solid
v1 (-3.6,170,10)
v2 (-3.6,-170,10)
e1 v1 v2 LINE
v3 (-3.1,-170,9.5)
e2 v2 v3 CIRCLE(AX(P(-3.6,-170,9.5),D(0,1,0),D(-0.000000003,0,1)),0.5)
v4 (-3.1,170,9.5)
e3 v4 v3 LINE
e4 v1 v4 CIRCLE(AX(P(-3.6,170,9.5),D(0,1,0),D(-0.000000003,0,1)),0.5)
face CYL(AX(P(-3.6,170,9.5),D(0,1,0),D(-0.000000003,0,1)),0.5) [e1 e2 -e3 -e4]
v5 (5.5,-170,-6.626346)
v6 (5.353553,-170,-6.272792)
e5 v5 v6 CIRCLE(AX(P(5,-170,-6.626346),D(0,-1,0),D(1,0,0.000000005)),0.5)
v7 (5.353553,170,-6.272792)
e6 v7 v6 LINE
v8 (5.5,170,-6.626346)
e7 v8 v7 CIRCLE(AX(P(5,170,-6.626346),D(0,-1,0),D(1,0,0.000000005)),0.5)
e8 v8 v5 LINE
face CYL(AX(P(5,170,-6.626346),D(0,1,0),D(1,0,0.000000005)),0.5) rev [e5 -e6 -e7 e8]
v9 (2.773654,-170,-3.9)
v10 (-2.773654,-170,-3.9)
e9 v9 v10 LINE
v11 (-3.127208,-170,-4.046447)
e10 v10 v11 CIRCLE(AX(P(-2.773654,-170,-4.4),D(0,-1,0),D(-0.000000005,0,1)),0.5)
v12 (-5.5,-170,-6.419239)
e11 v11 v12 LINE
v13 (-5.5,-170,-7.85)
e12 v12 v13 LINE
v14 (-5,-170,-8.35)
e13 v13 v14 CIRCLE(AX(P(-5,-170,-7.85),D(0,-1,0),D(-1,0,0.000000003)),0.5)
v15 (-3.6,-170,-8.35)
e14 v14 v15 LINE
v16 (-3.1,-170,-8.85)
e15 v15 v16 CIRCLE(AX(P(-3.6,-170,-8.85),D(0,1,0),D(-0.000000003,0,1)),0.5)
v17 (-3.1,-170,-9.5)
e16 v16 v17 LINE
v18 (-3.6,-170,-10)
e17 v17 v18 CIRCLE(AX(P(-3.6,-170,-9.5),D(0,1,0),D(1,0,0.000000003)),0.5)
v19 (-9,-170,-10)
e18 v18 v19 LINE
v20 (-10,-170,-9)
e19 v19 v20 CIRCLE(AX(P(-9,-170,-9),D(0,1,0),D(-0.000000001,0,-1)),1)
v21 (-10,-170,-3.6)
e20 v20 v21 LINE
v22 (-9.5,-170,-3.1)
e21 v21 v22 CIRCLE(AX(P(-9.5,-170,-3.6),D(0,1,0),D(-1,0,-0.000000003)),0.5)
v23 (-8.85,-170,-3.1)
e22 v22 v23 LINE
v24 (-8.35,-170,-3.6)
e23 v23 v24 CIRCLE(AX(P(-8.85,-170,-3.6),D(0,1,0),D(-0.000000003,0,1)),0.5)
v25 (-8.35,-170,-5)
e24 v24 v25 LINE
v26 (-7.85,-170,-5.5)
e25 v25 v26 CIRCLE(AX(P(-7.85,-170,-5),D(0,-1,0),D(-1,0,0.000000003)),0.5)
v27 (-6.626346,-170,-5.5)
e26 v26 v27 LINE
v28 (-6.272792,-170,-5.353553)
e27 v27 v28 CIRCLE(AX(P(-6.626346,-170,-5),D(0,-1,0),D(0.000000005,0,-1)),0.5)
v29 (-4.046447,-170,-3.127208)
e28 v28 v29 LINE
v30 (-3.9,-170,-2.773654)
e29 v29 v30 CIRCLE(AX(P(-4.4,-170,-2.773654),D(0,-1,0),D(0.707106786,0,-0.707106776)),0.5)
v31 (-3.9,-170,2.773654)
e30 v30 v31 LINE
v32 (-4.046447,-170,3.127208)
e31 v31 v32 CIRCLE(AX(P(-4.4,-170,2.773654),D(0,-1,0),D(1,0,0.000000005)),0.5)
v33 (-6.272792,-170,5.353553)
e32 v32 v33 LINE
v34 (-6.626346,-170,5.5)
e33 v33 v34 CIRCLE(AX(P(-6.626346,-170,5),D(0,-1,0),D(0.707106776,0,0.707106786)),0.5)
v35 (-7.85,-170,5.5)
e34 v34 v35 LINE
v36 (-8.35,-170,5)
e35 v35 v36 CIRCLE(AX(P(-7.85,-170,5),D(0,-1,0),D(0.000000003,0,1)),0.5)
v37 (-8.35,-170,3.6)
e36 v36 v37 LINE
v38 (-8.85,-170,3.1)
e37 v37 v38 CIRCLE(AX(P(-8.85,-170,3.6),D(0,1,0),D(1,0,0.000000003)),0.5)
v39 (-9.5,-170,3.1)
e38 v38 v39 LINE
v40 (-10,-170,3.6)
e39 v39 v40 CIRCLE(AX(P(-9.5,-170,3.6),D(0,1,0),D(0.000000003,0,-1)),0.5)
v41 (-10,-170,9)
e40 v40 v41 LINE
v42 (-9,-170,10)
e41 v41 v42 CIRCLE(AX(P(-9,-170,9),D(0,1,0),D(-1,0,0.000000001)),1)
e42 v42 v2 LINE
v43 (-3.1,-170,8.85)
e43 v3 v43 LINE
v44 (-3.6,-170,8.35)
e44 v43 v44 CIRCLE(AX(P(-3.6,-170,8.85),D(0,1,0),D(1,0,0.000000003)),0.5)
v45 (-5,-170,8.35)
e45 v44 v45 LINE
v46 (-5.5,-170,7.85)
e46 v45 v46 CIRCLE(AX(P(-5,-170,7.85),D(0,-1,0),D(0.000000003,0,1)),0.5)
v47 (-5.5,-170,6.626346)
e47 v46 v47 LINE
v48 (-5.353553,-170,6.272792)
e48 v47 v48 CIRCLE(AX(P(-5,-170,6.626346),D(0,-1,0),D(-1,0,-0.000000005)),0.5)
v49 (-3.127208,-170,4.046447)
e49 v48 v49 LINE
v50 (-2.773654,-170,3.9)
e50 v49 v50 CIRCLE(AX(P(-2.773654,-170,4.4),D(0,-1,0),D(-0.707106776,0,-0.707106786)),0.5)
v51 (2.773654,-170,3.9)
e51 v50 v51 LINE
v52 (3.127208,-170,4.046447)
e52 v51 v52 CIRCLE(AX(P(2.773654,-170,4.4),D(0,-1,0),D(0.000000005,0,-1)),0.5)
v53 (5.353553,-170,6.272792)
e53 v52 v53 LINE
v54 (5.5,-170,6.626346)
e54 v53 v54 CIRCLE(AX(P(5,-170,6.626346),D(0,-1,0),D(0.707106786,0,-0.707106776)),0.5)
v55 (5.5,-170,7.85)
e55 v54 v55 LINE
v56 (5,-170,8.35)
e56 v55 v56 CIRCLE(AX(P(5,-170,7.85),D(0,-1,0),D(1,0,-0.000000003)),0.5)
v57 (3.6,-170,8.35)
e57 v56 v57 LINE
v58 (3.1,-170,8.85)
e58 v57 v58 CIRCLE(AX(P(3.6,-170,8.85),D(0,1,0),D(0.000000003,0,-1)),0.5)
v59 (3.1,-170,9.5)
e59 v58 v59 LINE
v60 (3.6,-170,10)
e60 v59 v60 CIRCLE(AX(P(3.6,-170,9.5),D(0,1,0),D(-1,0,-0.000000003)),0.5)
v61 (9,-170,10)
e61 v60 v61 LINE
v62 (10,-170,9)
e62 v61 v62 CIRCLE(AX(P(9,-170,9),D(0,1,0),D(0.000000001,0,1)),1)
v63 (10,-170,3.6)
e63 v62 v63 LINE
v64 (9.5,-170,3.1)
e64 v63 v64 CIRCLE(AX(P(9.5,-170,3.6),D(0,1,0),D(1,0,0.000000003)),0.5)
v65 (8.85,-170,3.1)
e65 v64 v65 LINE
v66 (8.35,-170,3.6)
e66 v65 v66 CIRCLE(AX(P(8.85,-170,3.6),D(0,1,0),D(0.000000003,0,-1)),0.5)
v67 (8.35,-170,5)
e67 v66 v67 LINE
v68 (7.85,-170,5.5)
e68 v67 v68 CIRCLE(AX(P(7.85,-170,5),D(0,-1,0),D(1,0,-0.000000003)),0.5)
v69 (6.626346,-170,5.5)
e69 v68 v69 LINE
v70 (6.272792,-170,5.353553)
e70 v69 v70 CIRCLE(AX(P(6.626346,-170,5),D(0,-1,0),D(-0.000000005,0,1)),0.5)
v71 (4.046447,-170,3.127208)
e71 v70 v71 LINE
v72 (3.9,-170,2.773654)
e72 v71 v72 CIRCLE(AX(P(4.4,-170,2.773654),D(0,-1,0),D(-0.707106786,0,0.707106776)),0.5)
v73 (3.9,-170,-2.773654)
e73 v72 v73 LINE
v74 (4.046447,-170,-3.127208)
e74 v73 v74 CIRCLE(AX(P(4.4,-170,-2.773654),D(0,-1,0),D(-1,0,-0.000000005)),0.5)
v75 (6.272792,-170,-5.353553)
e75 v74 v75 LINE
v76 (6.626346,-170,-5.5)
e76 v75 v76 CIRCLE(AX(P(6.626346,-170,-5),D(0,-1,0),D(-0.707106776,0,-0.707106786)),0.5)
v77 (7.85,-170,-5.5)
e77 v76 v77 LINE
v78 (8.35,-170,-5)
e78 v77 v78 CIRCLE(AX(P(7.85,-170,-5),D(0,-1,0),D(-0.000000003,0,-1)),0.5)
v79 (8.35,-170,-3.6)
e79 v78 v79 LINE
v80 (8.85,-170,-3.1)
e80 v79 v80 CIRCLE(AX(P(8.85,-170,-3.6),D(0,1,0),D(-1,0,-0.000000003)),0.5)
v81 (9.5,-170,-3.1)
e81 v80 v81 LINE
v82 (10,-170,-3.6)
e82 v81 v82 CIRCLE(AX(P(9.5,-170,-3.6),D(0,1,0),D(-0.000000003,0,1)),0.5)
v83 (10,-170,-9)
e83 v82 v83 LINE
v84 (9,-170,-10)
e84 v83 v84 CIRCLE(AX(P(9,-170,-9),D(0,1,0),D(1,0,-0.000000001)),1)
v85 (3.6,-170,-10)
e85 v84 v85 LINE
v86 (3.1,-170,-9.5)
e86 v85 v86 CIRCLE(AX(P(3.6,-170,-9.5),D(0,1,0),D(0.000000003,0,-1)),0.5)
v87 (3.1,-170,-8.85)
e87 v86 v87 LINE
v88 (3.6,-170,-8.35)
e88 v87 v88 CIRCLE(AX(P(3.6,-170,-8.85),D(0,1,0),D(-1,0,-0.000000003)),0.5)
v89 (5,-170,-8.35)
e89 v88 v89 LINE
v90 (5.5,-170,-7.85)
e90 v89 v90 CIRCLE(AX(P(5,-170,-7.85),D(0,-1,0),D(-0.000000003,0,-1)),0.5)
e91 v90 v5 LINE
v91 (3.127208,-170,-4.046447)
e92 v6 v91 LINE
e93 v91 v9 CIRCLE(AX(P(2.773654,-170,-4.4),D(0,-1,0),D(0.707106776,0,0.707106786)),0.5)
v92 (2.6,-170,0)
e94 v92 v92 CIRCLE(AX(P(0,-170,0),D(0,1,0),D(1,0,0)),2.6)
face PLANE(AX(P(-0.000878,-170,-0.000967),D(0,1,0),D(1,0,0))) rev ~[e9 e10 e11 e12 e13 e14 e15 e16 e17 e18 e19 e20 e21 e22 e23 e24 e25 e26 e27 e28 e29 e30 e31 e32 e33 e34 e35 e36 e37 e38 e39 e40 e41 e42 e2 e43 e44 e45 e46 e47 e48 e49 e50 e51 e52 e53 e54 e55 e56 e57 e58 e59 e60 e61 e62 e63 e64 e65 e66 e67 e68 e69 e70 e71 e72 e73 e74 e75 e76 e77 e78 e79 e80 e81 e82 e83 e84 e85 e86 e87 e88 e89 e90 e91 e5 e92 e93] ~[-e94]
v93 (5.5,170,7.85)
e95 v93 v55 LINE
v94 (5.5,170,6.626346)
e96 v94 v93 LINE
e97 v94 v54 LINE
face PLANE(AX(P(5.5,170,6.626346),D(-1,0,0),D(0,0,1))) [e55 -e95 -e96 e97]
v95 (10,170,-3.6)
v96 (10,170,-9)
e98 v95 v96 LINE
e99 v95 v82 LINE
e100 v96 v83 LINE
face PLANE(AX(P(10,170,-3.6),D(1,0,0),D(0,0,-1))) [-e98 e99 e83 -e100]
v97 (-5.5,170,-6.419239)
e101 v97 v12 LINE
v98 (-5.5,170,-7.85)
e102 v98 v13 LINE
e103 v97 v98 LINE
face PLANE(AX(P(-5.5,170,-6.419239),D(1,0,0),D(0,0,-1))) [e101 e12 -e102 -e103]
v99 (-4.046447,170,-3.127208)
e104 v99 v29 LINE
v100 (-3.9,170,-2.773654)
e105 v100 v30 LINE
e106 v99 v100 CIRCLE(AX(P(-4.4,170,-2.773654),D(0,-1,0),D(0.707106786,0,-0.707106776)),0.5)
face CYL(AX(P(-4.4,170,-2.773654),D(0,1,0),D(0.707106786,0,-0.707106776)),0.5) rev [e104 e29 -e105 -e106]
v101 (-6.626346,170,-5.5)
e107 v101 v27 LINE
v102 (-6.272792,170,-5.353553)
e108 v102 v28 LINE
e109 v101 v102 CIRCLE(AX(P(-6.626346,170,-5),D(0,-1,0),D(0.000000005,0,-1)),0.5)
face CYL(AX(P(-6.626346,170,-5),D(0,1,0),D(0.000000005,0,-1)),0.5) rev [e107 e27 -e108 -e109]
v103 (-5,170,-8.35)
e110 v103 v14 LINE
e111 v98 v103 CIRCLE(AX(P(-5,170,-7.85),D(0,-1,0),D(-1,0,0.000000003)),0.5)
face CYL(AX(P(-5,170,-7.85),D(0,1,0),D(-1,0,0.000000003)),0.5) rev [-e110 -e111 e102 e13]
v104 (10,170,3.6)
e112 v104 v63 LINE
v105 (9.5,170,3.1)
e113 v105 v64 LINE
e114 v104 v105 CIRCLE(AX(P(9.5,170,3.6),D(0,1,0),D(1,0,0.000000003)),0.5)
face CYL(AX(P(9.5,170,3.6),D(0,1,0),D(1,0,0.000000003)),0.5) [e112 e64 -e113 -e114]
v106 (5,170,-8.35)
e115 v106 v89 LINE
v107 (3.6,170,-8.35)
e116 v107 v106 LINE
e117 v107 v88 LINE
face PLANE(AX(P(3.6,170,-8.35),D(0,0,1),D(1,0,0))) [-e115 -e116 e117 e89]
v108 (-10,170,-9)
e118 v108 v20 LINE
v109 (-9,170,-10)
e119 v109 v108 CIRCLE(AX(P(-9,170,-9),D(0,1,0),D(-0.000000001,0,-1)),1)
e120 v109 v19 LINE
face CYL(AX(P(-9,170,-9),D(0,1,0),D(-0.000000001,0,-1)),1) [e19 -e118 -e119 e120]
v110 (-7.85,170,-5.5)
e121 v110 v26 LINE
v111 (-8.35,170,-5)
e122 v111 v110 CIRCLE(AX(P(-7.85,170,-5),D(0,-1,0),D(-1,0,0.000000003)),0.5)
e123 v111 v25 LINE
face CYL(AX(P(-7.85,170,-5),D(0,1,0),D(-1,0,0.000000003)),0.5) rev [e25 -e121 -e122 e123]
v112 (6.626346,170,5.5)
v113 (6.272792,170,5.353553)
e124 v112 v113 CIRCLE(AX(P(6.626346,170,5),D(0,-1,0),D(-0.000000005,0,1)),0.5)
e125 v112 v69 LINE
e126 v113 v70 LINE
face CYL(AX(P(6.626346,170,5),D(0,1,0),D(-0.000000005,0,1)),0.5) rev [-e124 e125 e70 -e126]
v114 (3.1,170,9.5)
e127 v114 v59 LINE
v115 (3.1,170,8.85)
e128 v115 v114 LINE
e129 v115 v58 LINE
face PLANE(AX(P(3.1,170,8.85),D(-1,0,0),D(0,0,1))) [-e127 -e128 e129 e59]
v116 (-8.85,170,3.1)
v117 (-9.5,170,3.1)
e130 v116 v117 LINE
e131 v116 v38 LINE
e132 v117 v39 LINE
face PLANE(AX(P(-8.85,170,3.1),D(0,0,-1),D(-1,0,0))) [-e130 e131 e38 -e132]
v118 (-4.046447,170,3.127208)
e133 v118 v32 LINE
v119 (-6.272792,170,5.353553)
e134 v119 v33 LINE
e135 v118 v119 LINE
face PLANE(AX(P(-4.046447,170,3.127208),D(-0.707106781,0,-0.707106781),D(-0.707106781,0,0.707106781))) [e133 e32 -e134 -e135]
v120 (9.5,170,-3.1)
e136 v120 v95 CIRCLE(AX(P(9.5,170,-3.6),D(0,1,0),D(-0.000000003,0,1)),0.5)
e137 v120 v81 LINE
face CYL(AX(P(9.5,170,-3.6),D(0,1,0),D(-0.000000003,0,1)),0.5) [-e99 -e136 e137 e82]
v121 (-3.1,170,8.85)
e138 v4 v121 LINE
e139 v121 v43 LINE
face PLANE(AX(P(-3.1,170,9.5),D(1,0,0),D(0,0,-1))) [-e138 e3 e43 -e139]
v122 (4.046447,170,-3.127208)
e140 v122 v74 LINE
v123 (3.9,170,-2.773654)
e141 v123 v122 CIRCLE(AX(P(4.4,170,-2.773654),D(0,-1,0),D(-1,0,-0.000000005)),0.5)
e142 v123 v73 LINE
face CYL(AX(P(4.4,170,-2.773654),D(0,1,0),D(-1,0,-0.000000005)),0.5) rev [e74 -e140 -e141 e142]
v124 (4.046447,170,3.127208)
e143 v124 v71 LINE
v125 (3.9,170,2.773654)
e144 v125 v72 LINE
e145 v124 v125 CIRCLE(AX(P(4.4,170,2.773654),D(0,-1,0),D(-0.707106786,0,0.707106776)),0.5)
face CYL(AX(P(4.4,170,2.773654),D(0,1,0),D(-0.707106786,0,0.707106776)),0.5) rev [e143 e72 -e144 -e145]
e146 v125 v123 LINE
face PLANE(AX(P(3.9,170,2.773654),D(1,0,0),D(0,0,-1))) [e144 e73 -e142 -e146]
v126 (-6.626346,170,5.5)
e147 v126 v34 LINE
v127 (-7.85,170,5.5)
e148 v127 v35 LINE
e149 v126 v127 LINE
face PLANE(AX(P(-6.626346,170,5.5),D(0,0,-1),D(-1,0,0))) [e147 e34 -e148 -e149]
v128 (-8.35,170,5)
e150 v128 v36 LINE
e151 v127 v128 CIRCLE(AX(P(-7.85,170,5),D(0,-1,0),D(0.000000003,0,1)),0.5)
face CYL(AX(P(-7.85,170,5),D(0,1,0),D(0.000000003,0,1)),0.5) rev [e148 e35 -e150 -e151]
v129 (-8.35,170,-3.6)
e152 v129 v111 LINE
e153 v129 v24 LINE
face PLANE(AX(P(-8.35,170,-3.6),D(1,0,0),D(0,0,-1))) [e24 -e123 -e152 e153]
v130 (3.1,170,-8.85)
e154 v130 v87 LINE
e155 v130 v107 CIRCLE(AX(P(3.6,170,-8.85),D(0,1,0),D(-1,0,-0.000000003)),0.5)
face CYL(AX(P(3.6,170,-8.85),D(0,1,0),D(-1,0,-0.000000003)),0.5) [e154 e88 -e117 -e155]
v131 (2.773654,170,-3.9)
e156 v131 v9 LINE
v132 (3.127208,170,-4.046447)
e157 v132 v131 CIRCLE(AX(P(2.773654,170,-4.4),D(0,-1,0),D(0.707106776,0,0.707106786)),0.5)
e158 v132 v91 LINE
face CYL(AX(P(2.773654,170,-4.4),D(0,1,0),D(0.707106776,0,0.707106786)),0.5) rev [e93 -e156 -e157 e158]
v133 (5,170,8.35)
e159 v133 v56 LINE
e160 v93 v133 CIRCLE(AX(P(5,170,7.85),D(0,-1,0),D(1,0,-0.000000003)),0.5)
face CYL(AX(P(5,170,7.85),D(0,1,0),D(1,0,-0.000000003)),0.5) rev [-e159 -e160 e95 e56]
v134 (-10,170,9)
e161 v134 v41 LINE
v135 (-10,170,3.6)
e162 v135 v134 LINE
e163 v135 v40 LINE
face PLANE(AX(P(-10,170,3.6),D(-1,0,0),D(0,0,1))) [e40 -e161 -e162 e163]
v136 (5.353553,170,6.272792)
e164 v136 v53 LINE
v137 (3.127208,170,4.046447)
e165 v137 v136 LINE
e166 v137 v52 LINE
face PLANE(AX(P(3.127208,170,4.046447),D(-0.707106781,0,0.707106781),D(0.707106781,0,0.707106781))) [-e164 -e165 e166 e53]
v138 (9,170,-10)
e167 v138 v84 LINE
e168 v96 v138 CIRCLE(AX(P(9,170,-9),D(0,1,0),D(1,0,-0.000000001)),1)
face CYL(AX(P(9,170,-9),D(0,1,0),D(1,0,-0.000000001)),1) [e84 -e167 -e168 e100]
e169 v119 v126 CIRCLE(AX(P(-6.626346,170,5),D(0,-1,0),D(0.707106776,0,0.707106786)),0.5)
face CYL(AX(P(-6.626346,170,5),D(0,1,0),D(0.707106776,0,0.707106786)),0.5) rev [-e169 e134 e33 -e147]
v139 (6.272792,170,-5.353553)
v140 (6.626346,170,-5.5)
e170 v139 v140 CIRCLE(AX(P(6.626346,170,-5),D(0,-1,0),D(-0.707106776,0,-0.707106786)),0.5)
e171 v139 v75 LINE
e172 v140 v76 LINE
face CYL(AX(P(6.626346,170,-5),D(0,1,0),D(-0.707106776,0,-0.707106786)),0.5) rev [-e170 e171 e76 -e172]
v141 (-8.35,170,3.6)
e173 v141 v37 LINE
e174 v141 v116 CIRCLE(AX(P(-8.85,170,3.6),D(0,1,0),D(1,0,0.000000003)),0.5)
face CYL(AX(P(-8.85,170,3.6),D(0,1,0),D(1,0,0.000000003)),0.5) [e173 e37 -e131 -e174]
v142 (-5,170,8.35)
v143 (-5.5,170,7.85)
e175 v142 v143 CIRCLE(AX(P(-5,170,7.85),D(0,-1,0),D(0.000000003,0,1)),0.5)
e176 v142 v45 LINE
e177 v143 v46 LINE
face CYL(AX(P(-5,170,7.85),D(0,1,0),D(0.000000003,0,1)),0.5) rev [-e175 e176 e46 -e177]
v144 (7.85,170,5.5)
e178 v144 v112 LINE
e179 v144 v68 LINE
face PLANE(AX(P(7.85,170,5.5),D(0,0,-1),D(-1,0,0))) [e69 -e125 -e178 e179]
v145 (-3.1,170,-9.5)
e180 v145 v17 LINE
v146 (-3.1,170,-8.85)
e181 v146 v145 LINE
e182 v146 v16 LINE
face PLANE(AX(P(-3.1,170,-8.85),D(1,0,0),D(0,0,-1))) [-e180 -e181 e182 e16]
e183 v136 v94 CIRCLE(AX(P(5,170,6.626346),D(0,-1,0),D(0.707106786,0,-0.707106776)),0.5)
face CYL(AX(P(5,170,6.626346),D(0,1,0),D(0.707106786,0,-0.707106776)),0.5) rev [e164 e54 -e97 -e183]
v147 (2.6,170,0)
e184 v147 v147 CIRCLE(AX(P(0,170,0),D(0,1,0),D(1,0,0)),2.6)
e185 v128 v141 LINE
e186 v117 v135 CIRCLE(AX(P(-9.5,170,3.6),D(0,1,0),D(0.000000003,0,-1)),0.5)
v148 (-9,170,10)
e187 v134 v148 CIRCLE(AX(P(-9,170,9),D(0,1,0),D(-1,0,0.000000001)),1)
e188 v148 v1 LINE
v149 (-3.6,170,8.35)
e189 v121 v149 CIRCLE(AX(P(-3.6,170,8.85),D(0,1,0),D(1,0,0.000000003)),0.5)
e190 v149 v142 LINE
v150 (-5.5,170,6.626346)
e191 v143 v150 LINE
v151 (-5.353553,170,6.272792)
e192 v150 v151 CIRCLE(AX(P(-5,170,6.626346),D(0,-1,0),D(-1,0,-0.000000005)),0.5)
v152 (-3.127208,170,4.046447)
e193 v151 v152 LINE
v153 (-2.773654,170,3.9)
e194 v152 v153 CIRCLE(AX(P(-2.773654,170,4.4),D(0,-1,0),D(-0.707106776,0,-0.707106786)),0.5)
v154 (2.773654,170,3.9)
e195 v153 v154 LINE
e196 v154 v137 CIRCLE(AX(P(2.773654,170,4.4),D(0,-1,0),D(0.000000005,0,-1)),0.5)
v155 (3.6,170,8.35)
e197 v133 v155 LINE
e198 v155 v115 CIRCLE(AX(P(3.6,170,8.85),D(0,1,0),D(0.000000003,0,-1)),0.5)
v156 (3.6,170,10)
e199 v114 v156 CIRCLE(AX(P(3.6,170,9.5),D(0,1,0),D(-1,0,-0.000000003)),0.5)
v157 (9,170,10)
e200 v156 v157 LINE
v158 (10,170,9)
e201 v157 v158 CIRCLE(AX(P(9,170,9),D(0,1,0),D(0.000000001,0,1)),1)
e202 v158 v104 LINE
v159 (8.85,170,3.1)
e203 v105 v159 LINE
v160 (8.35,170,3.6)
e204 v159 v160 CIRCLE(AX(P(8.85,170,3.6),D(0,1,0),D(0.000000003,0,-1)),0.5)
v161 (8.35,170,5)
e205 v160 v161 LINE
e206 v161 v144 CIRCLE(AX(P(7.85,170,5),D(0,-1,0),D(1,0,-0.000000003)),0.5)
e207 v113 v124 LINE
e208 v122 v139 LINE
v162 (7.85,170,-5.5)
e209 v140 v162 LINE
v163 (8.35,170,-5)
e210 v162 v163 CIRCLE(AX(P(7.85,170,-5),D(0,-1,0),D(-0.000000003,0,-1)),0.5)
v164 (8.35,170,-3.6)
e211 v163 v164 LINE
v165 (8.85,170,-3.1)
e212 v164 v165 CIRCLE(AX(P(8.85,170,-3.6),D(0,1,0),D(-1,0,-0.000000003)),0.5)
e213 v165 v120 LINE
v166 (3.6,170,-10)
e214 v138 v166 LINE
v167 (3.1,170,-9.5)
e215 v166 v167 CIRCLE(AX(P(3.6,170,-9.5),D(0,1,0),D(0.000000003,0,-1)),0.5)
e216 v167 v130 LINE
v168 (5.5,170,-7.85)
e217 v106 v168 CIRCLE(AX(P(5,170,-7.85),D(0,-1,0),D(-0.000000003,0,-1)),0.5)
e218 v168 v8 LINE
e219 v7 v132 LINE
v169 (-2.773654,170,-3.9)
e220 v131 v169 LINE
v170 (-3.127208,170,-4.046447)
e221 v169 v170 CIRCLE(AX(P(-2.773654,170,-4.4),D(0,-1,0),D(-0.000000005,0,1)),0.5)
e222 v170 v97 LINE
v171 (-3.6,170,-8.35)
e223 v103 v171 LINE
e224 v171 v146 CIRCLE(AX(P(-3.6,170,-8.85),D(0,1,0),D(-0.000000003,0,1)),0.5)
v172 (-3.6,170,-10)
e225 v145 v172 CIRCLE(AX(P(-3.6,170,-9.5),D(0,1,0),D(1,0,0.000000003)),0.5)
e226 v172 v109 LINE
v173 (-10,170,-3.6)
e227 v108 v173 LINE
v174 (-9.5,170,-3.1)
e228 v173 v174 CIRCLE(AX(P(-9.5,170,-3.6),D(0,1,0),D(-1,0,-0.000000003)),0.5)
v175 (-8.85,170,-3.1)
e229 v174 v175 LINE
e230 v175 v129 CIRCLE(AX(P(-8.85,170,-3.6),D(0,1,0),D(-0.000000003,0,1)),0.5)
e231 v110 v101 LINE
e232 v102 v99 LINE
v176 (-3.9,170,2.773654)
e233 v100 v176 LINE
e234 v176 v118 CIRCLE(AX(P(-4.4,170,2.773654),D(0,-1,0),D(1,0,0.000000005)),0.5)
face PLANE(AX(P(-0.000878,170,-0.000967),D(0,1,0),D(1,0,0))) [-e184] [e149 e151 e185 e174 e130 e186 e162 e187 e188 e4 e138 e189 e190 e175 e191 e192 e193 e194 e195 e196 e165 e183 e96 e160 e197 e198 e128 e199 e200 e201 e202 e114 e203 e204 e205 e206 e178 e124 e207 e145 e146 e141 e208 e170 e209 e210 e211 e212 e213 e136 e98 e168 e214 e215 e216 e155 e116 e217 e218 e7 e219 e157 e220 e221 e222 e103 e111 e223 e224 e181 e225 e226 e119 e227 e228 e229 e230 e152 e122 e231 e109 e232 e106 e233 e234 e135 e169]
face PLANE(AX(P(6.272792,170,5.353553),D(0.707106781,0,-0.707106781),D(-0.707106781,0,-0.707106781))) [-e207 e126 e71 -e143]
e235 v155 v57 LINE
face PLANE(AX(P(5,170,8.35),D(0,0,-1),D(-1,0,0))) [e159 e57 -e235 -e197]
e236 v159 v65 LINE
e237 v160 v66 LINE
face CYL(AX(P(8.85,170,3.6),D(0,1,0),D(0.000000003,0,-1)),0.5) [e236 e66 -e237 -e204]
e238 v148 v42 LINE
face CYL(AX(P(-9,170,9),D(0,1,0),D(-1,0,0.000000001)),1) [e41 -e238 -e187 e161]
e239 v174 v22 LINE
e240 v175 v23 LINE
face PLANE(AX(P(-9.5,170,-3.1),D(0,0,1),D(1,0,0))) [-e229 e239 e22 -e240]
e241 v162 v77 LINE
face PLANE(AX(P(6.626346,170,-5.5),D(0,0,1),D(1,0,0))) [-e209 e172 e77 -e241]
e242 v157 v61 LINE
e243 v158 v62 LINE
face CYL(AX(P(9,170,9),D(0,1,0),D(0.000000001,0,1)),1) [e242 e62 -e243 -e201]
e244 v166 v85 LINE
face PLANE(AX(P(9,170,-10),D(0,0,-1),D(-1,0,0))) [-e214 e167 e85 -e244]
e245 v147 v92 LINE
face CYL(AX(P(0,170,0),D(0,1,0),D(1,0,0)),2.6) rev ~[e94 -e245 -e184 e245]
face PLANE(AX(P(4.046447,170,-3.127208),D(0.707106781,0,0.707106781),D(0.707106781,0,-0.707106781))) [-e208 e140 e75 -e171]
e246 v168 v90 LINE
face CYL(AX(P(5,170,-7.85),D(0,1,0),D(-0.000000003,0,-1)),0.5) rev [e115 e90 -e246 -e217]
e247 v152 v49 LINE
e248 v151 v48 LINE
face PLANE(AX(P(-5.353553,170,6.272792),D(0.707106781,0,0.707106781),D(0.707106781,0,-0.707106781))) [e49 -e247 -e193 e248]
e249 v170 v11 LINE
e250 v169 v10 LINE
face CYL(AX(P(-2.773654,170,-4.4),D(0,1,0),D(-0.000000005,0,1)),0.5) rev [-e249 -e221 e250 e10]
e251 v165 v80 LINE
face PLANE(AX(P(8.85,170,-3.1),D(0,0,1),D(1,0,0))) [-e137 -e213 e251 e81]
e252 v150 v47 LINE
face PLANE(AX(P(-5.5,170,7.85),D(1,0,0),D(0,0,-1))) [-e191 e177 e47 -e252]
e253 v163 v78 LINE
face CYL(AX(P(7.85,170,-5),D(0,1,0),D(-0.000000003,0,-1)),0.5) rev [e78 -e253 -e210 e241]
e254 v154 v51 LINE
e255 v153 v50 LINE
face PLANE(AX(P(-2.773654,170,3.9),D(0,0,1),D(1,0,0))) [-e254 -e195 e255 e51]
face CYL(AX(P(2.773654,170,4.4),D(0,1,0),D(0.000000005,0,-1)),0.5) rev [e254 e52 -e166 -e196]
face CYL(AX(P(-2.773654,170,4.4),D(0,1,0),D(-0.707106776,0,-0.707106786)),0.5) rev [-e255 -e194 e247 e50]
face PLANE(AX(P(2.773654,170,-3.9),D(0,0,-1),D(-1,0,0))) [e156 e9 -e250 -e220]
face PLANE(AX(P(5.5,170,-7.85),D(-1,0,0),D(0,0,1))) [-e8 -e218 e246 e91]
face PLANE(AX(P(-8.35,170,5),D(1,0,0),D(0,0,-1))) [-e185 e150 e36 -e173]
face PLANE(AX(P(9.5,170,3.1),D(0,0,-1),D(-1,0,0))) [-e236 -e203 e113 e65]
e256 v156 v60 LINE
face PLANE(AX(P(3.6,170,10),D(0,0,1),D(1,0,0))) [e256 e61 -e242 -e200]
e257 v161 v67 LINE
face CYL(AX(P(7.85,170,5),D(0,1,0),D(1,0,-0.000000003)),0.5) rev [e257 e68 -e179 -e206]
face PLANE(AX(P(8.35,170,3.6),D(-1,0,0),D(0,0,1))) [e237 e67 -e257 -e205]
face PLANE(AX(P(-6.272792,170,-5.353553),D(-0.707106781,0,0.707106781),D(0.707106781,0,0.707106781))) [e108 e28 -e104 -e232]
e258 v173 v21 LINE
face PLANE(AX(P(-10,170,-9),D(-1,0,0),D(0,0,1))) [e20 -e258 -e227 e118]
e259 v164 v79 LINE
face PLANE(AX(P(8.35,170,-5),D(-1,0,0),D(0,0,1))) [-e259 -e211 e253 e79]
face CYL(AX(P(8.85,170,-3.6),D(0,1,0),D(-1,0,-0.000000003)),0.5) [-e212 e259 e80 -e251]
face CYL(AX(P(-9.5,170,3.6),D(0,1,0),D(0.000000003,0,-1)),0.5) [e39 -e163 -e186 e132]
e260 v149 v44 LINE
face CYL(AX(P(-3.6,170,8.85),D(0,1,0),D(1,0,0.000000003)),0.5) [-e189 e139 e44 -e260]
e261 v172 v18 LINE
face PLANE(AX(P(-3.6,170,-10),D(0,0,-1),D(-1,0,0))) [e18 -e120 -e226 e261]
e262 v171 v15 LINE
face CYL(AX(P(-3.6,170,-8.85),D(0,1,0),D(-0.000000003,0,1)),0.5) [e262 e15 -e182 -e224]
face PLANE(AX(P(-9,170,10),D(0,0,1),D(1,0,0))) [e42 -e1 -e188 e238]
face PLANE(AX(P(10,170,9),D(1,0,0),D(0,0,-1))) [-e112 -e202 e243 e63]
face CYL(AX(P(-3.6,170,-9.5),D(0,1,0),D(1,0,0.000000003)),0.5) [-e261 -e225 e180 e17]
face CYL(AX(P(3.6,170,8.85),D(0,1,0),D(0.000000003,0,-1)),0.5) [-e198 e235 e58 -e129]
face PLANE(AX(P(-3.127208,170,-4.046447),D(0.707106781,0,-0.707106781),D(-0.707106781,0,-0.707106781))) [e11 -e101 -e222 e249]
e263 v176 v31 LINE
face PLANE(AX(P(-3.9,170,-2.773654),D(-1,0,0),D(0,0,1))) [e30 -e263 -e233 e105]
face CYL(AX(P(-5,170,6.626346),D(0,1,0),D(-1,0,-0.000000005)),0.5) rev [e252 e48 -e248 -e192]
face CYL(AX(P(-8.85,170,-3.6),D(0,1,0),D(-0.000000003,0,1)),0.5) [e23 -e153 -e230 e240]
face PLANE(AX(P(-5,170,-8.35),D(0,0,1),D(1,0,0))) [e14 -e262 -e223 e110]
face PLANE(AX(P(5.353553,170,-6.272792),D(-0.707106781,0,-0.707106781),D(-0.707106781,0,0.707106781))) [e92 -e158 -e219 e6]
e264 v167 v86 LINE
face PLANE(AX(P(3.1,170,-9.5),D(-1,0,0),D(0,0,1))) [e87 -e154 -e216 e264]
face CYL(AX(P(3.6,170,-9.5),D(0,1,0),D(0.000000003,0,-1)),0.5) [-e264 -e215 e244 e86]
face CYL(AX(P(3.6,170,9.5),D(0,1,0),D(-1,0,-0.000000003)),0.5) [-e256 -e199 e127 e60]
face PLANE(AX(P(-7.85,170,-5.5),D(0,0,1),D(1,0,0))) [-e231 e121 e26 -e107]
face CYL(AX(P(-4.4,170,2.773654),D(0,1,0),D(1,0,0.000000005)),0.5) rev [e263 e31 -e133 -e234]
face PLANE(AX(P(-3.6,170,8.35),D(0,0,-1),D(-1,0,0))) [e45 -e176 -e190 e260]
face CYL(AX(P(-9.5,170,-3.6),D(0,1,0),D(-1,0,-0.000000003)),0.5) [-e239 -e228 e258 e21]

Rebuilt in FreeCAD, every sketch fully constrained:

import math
import FreeCAD as App
import Part
import Sketcher

V = App.Vector

doc = App.newDocument("Part")
body = doc.addObject("PartDesign::Body", "Body")

# Sketch on XZ plane
sketch1 = body.newObject("Sketcher::SketchObject", "Sketch")
sketch1.AttachmentSupport = (doc.getObject("XZ_Plane"), [""])
sketch1.MapMode = "FlatFace"
sketch1.AttachmentOffset = App.Placement(V(0, 0, -170), App.Rotation())
sketch1.addGeometry(Part.LineSegment(V(-3.1, -8.85, 0), V(-3.1, -9.5, 0)), False)
sketch1.addGeometry(Part.ArcOfCircle(Part.Circle(V(-3.6, -9.5, 0), V(0, 0, 1), 0.5), math.radians(-90), math.radians(0)), False)
sketch1.addGeometry(Part.LineSegment(V(-3.6, -10, 0), V(-9, -10, 0)), False)
sketch1.addGeometry(Part.ArcOfCircle(Part.Circle(V(-9, -9, 0), V(0, 0, 1), 1), math.radians(-180), math.radians(-90)), False)
sketch1.addGeometry(Part.LineSegment(V(-10, -9, 0), V(-10, -3.6, 0)), False)
sketch1.addGeometry(Part.ArcOfCircle(Part.Circle(V(-9.5, -3.6, 0), V(0, 0, 1), 0.5), math.radians(90), math.radians(180)), False)
sketch1.addGeometry(Part.LineSegment(V(-9.5, -3.1, 0), V(-8.85, -3.1, 0)), False)
sketch1.addGeometry(Part.ArcOfCircle(Part.Circle(V(-8.85, -3.6, 0), V(0, 0, 1), 0.5), math.radians(0), math.radians(90)), False)
sketch1.addGeometry(Part.LineSegment(V(-8.35, -3.6, 0), V(-8.35, -5, 0)), False)
sketch1.addGeometry(Part.ArcOfCircle(Part.Circle(V(-7.85, -5, 0), V(0, 0, 1), 0.5), math.radians(180), math.radians(270)), False)
sketch1.addGeometry(Part.LineSegment(V(-7.85, -5.5, 0), V(-6.63, -5.5, 0)), False)
sketch1.addGeometry(Part.ArcOfCircle(Part.Circle(V(-6.63, -5, 0), V(0, 0, 1), 0.5), math.radians(-90), math.radians(-45)), False)
sketch1.addGeometry(Part.LineSegment(V(-6.27, -5.35, 0), V(-4.05, -3.13, 0)), False)
sketch1.addGeometry(Part.ArcOfCircle(Part.Circle(V(-4.4, -2.77, 0), V(0, 0, 1), 0.5), math.radians(-45), math.radians(0)), False)
sketch1.addGeometry(Part.LineSegment(V(-3.9, -2.77, 0), V(-3.9, 2.77, 0)), False)
sketch1.addGeometry(Part.ArcOfCircle(Part.Circle(V(-4.4, 2.77, 0), V(0, 0, 1), 0.5), math.radians(0), math.radians(45)), False)
sketch1.addGeometry(Part.LineSegment(V(-4.05, 3.13, 0), V(-6.27, 5.35, 0)), False)
sketch1.addGeometry(Part.ArcOfCircle(Part.Circle(V(-6.63, 5, 0), V(0, 0, 1), 0.5), math.radians(45), math.radians(90)), False)
sketch1.addGeometry(Part.LineSegment(V(-6.63, 5.5, 0), V(-7.85, 5.5, 0)), False)
sketch1.addGeometry(Part.ArcOfCircle(Part.Circle(V(-7.85, 5, 0), V(0, 0, 1), 0.5), math.radians(90), math.radians(180)), False)
sketch1.addGeometry(Part.LineSegment(V(-8.35, 5, 0), V(-8.35, 3.6, 0)), False)
sketch1.addGeometry(Part.ArcOfCircle(Part.Circle(V(-8.85, 3.6, 0), V(0, 0, 1), 0.5), math.radians(-90), math.radians(0)), False)
sketch1.addGeometry(Part.LineSegment(V(-8.85, 3.1, 0), V(-9.5, 3.1, 0)), False)
sketch1.addGeometry(Part.ArcOfCircle(Part.Circle(V(-9.5, 3.6, 0), V(0, 0, 1), 0.5), math.radians(180), math.radians(270)), False)
sketch1.addGeometry(Part.LineSegment(V(-10, 3.6, 0), V(-10, 9, 0)), False)
sketch1.addGeometry(Part.ArcOfCircle(Part.Circle(V(-9, 9, 0), V(0, 0, 1), 1), math.radians(90), math.radians(180)), False)
sketch1.addGeometry(Part.LineSegment(V(-9, 10, 0), V(-3.6, 10, 0)), False)
sketch1.addGeometry(Part.ArcOfCircle(Part.Circle(V(-3.6, 9.5, 0), V(0, 0, 1), 0.5), math.radians(0), math.radians(90)), False)
sketch1.addGeometry(Part.LineSegment(V(-3.1, 9.5, 0), V(-3.1, 8.85, 0)), False)
sketch1.addGeometry(Part.ArcOfCircle(Part.Circle(V(-3.6, 8.85, 0), V(0, 0, 1), 0.5), math.radians(-90), math.radians(0)), False)
sketch1.addGeometry(Part.LineSegment(V(-3.6, 8.35, 0), V(-5, 8.35, 0)), False)
sketch1.addGeometry(Part.ArcOfCircle(Part.Circle(V(-5, 7.85, 0), V(0, 0, 1), 0.5), math.radians(90), math.radians(180)), False)
sketch1.addGeometry(Part.LineSegment(V(-5.5, 7.85, 0), V(-5.5, 6.63, 0)), False)
sketch1.addGeometry(Part.ArcOfCircle(Part.Circle(V(-5, 6.63, 0), V(0, 0, 1), 0.5), math.radians(-180), math.radians(-135)), False)
sketch1.addGeometry(Part.LineSegment(V(-5.35, 6.27, 0), V(-3.13, 4.05, 0)), False)
sketch1.addGeometry(Part.ArcOfCircle(Part.Circle(V(-2.77, 4.4, 0), V(0, 0, 1), 0.5), math.radians(-135), math.radians(-90)), False)
sketch1.addGeometry(Part.LineSegment(V(-2.77, 3.9, 0), V(2.77, 3.9, 0)), False)
sketch1.addGeometry(Part.ArcOfCircle(Part.Circle(V(2.77, 4.4, 0), V(0, 0, 1), 0.5), math.radians(-90), math.radians(-45)), False)
sketch1.addGeometry(Part.LineSegment(V(3.13, 4.05, 0), V(5.35, 6.27, 0)), False)
sketch1.addGeometry(Part.ArcOfCircle(Part.Circle(V(5, 6.63, 0), V(0, 0, 1), 0.5), math.radians(-45), math.radians(0)), False)
sketch1.addGeometry(Part.LineSegment(V(5.5, 6.63, 0), V(5.5, 7.85, 0)), False)
sketch1.addGeometry(Part.ArcOfCircle(Part.Circle(V(5, 7.85, 0), V(0, 0, 1), 0.5), math.radians(0), math.radians(90)), False)
sketch1.addGeometry(Part.LineSegment(V(5, 8.35, 0), V(3.6, 8.35, 0)), False)
sketch1.addGeometry(Part.ArcOfCircle(Part.Circle(V(3.6, 8.85, 0), V(0, 0, 1), 0.5), math.radians(180), math.radians(270)), False)
sketch1.addGeometry(Part.LineSegment(V(3.1, 8.85, 0), V(3.1, 9.5, 0)), False)
sketch1.addGeometry(Part.ArcOfCircle(Part.Circle(V(3.6, 9.5, 0), V(0, 0, 1), 0.5), math.radians(90), math.radians(180)), False)
sketch1.addGeometry(Part.LineSegment(V(3.6, 10, 0), V(9, 10, 0)), False)
sketch1.addGeometry(Part.ArcOfCircle(Part.Circle(V(9, 9, 0), V(0, 0, 1), 1), math.radians(0), math.radians(90)), False)
sketch1.addGeometry(Part.LineSegment(V(10, 9, 0), V(10, 3.6, 0)), False)
sketch1.addGeometry(Part.ArcOfCircle(Part.Circle(V(9.5, 3.6, 0), V(0, 0, 1), 0.5), math.radians(-90), math.radians(0)), False)
sketch1.addGeometry(Part.LineSegment(V(9.5, 3.1, 0), V(8.85, 3.1, 0)), False)
sketch1.addGeometry(Part.ArcOfCircle(Part.Circle(V(8.85, 3.6, 0), V(0, 0, 1), 0.5), math.radians(180), math.radians(270)), False)
sketch1.addGeometry(Part.LineSegment(V(8.35, 3.6, 0), V(8.35, 5, 0)), False)
sketch1.addGeometry(Part.ArcOfCircle(Part.Circle(V(7.85, 5, 0), V(0, 0, 1), 0.5), math.radians(0), math.radians(90)), False)
sketch1.addGeometry(Part.LineSegment(V(7.85, 5.5, 0), V(6.63, 5.5, 0)), False)
sketch1.addGeometry(Part.ArcOfCircle(Part.Circle(V(6.63, 5, 0), V(0, 0, 1), 0.5), math.radians(90), math.radians(135)), False)
sketch1.addGeometry(Part.LineSegment(V(6.27, 5.35, 0), V(4.05, 3.13, 0)), False)
sketch1.addGeometry(Part.ArcOfCircle(Part.Circle(V(4.4, 2.77, 0), V(0, 0, 1), 0.5), math.radians(135), math.radians(180)), False)
sketch1.addGeometry(Part.LineSegment(V(3.9, 2.77, 0), V(3.9, -2.77, 0)), False)
sketch1.addGeometry(Part.ArcOfCircle(Part.Circle(V(4.4, -2.77, 0), V(0, 0, 1), 0.5), math.radians(-180), math.radians(-135)), False)
sketch1.addGeometry(Part.LineSegment(V(4.05, -3.13, 0), V(6.27, -5.35, 0)), False)
sketch1.addGeometry(Part.ArcOfCircle(Part.Circle(V(6.63, -5, 0), V(0, 0, 1), 0.5), math.radians(-135), math.radians(-90)), False)
sketch1.addGeometry(Part.LineSegment(V(6.63, -5.5, 0), V(7.85, -5.5, 0)), False)
sketch1.addGeometry(Part.ArcOfCircle(Part.Circle(V(7.85, -5, 0), V(0, 0, 1), 0.5), math.radians(-90), math.radians(0)), False)
sketch1.addGeometry(Part.LineSegment(V(8.35, -5, 0), V(8.35, -3.6, 0)), False)
sketch1.addGeometry(Part.ArcOfCircle(Part.Circle(V(8.85, -3.6, 0), V(0, 0, 1), 0.5), math.radians(90), math.radians(180)), False)
sketch1.addGeometry(Part.LineSegment(V(8.85, -3.1, 0), V(9.5, -3.1, 0)), False)
sketch1.addGeometry(Part.ArcOfCircle(Part.Circle(V(9.5, -3.6, 0), V(0, 0, 1), 0.5), math.radians(0), math.radians(90)), False)
sketch1.addGeometry(Part.LineSegment(V(10, -3.6, 0), V(10, -9, 0)), False)
sketch1.addGeometry(Part.ArcOfCircle(Part.Circle(V(9, -9, 0), V(0, 0, 1), 1), math.radians(-90), math.radians(0)), False)
sketch1.addGeometry(Part.LineSegment(V(9, -10, 0), V(3.6, -10, 0)), False)
sketch1.addGeometry(Part.ArcOfCircle(Part.Circle(V(3.6, -9.5, 0), V(0, 0, 1), 0.5), math.radians(180), math.radians(270)), False)
sketch1.addGeometry(Part.LineSegment(V(3.1, -9.5, 0), V(3.1, -8.85, 0)), False)
sketch1.addGeometry(Part.ArcOfCircle(Part.Circle(V(3.6, -8.85, 0), V(0, 0, 1), 0.5), math.radians(90), math.radians(180)), False)
sketch1.addGeometry(Part.LineSegment(V(3.6, -8.35, 0), V(5, -8.35, 0)), False)
sketch1.addGeometry(Part.ArcOfCircle(Part.Circle(V(5, -7.85, 0), V(0, 0, 1), 0.5), math.radians(-90), math.radians(0)), False)
sketch1.addGeometry(Part.LineSegment(V(5.5, -7.85, 0), V(5.5, -6.63, 0)), False)
sketch1.addGeometry(Part.ArcOfCircle(Part.Circle(V(5, -6.63, 0), V(0, 0, 1), 0.5), math.radians(0), math.radians(45)), False)
sketch1.addGeometry(Part.LineSegment(V(5.35, -6.27, 0), V(3.13, -4.05, 0)), False)
sketch1.addGeometry(Part.ArcOfCircle(Part.Circle(V(2.77, -4.4, 0), V(0, 0, 1), 0.5), math.radians(45), math.radians(90)), False)
sketch1.addGeometry(Part.LineSegment(V(2.77, -3.9, 0), V(-2.77, -3.9, 0)), False)
sketch1.addGeometry(Part.ArcOfCircle(Part.Circle(V(-2.77, -4.4, 0), V(0, 0, 1), 0.5), math.radians(90), math.radians(135)), False)
sketch1.addGeometry(Part.LineSegment(V(-3.13, -4.05, 0), V(-5.5, -6.42, 0)), False)
sketch1.addGeometry(Part.LineSegment(V(-5.5, -6.42, 0), V(-5.5, -7.85, 0)), False)
sketch1.addGeometry(Part.ArcOfCircle(Part.Circle(V(-5, -7.85, 0), V(0, 0, 1), 0.5), math.radians(180), math.radians(270)), False)
sketch1.addGeometry(Part.LineSegment(V(-5, -8.35, 0), V(-3.6, -8.35, 0)), False)
sketch1.addGeometry(Part.ArcOfCircle(Part.Circle(V(-3.6, -8.85, 0), V(0, 0, 1), 0.5), math.radians(0), math.radians(90)), False)
sketch1.addGeometry(Part.Circle(V(0, 0, 0), V(0, 0, 1), 2.6), False)
sketch1.addConstraint(Sketcher.Constraint("Tangent", 0, 2, 1, 2))
sketch1.addConstraint(Sketcher.Constraint("Tangent", 1, 1, 2, 1))
sketch1.addConstraint(Sketcher.Constraint("Tangent", 2, 2, 3, 2))
sketch1.addConstraint(Sketcher.Constraint("Tangent", 3, 1, 4, 1))
sketch1.addConstraint(Sketcher.Constraint("Tangent", 4, 2, 5, 2))
sketch1.addConstraint(Sketcher.Constraint("Tangent", 5, 1, 6, 1))
sketch1.addConstraint(Sketcher.Constraint("Tangent", 6, 2, 7, 2))
sketch1.addConstraint(Sketcher.Constraint("Tangent", 7, 1, 8, 1))
sketch1.addConstraint(Sketcher.Constraint("Tangent", 8, 2, 9, 1))
sketch1.addConstraint(Sketcher.Constraint("Tangent", 9, 2, 10, 1))
sketch1.addConstraint(Sketcher.Constraint("Tangent", 10, 2, 11, 1))
sketch1.addConstraint(Sketcher.Constraint("Tangent", 11, 2, 12, 1))
sketch1.addConstraint(Sketcher.Constraint("Tangent", 12, 2, 13, 1))
sketch1.addConstraint(Sketcher.Constraint("Tangent", 13, 2, 14, 1))
sketch1.addConstraint(Sketcher.Constraint("Tangent", 14, 2, 15, 1))
sketch1.addConstraint(Sketcher.Constraint("Tangent", 15, 2, 16, 1))
sketch1.addConstraint(Sketcher.Constraint("Tangent", 16, 2, 17, 1))
sketch1.addConstraint(Sketcher.Constraint("Tangent", 17, 2, 18, 1))
sketch1.addConstraint(Sketcher.Constraint("Tangent", 18, 2, 19, 1))
sketch1.addConstraint(Sketcher.Constraint("Tangent", 19, 2, 20, 1))
sketch1.addConstraint(Sketcher.Constraint("Tangent", 20, 2, 21, 2))
sketch1.addConstraint(Sketcher.Constraint("Tangent", 21, 1, 22, 1))
sketch1.addConstraint(Sketcher.Constraint("Tangent", 22, 2, 23, 2))
sketch1.addConstraint(Sketcher.Constraint("Tangent", 23, 1, 24, 1))
sketch1.addConstraint(Sketcher.Constraint("Tangent", 24, 2, 25, 2))
sketch1.addConstraint(Sketcher.Constraint("Tangent", 25, 1, 26, 1))
sketch1.addConstraint(Sketcher.Constraint("Tangent", 26, 2, 27, 2))
sketch1.addConstraint(Sketcher.Constraint("Tangent", 27, 1, 28, 1))
sketch1.addConstraint(Sketcher.Constraint("Tangent", 28, 2, 29, 2))
sketch1.addConstraint(Sketcher.Constraint("Tangent", 29, 1, 30, 1))
sketch1.addConstraint(Sketcher.Constraint("Tangent", 30, 2, 31, 1))
sketch1.addConstraint(Sketcher.Constraint("Tangent", 31, 2, 32, 1))
sketch1.addConstraint(Sketcher.Constraint("Tangent", 32, 2, 33, 1))
sketch1.addConstraint(Sketcher.Constraint("Tangent", 33, 2, 34, 1))
sketch1.addConstraint(Sketcher.Constraint("Tangent", 34, 2, 35, 1))
sketch1.addConstraint(Sketcher.Constraint("Tangent", 35, 2, 36, 1))
sketch1.addConstraint(Sketcher.Constraint("Tangent", 36, 2, 37, 1))
sketch1.addConstraint(Sketcher.Constraint("Tangent", 37, 2, 38, 1))
sketch1.addConstraint(Sketcher.Constraint("Tangent", 38, 2, 39, 1))
sketch1.addConstraint(Sketcher.Constraint("Tangent", 39, 2, 40, 1))
sketch1.addConstraint(Sketcher.Constraint("Tangent", 40, 2, 41, 1))
sketch1.addConstraint(Sketcher.Constraint("Tangent", 41, 2, 42, 1))
sketch1.addConstraint(Sketcher.Constraint("Tangent", 42, 2, 43, 2))
sketch1.addConstraint(Sketcher.Constraint("Tangent", 43, 1, 44, 1))
sketch1.addConstraint(Sketcher.Constraint("Tangent", 44, 2, 45, 2))
sketch1.addConstraint(Sketcher.Constraint("Tangent", 45, 1, 46, 1))
sketch1.addConstraint(Sketcher.Constraint("Tangent", 46, 2, 47, 2))
sketch1.addConstraint(Sketcher.Constraint("Tangent", 47, 1, 48, 1))
sketch1.addConstraint(Sketcher.Constraint("Tangent", 48, 2, 49, 2))
sketch1.addConstraint(Sketcher.Constraint("Tangent", 49, 1, 50, 1))
sketch1.addConstraint(Sketcher.Constraint("Tangent", 50, 2, 51, 2))
sketch1.addConstraint(Sketcher.Constraint("Tangent", 51, 1, 52, 1))
sketch1.addConstraint(Sketcher.Constraint("Tangent", 52, 2, 53, 1))
sketch1.addConstraint(Sketcher.Constraint("Tangent", 53, 2, 54, 1))
sketch1.addConstraint(Sketcher.Constraint("Tangent", 54, 2, 55, 1))
sketch1.addConstraint(Sketcher.Constraint("Tangent", 55, 2, 56, 1))
sketch1.addConstraint(Sketcher.Constraint("Tangent", 56, 2, 57, 1))
sketch1.addConstraint(Sketcher.Constraint("Tangent", 57, 2, 58, 1))
sketch1.addConstraint(Sketcher.Constraint("Tangent", 58, 2, 59, 1))
sketch1.addConstraint(Sketcher.Constraint("Tangent", 59, 2, 60, 1))
sketch1.addConstraint(Sketcher.Constraint("Tangent", 60, 2, 61, 1))
sketch1.addConstraint(Sketcher.Constraint("Tangent", 61, 2, 62, 1))
sketch1.addConstraint(Sketcher.Constraint("Tangent", 62, 2, 63, 1))
sketch1.addConstraint(Sketcher.Constraint("Tangent", 63, 2, 64, 1))
sketch1.addConstraint(Sketcher.Constraint("Tangent", 64, 2, 65, 2))
sketch1.addConstraint(Sketcher.Constraint("Tangent", 65, 1, 66, 1))
sketch1.addConstraint(Sketcher.Constraint("Tangent", 66, 2, 67, 2))
sketch1.addConstraint(Sketcher.Constraint("Tangent", 67, 1, 68, 1))
sketch1.addConstraint(Sketcher.Constraint("Tangent", 68, 2, 69, 2))
sketch1.addConstraint(Sketcher.Constraint("Tangent", 69, 1, 70, 1))
sketch1.addConstraint(Sketcher.Constraint("Tangent", 70, 2, 71, 2))
sketch1.addConstraint(Sketcher.Constraint("Tangent", 71, 1, 72, 1))
sketch1.addConstraint(Sketcher.Constraint("Tangent", 72, 2, 73, 2))
sketch1.addConstraint(Sketcher.Constraint("Tangent", 73, 1, 74, 1))
sketch1.addConstraint(Sketcher.Constraint("Tangent", 74, 2, 75, 1))
sketch1.addConstraint(Sketcher.Constraint("Tangent", 75, 2, 76, 1))
sketch1.addConstraint(Sketcher.Constraint("Tangent", 76, 2, 77, 1))
sketch1.addConstraint(Sketcher.Constraint("Tangent", 77, 2, 78, 1))
sketch1.addConstraint(Sketcher.Constraint("Tangent", 78, 2, 79, 1))
sketch1.addConstraint(Sketcher.Constraint("Tangent", 79, 2, 80, 1))
sketch1.addConstraint(Sketcher.Constraint("Tangent", 80, 2, 81, 1))
sketch1.addConstraint(Sketcher.Constraint("Tangent", 81, 2, 82, 1))
sketch1.addConstraint(Sketcher.Constraint("Coincident", 82, 2, 83, 1))
sketch1.addConstraint(Sketcher.Constraint("Tangent", 83, 2, 84, 1))
sketch1.addConstraint(Sketcher.Constraint("Tangent", 84, 2, 85, 1))
sketch1.addConstraint(Sketcher.Constraint("Tangent", 85, 2, 86, 2))
sketch1.addConstraint(Sketcher.Constraint("Tangent", 86, 1, 0, 1))
sketch1.addConstraint(Sketcher.Constraint("Vertical", 0))
sketch1.addConstraint(Sketcher.Constraint("Horizontal", 2))
sketch1.addConstraint(Sketcher.Constraint("Vertical", 4))
sketch1.addConstraint(Sketcher.Constraint("Horizontal", 6))
sketch1.addConstraint(Sketcher.Constraint("Vertical", 8))
sketch1.addConstraint(Sketcher.Constraint("Horizontal", 10))
sketch1.addConstraint(Sketcher.Constraint("Vertical", 14))
sketch1.addConstraint(Sketcher.Constraint("Horizontal", 18))
sketch1.addConstraint(Sketcher.Constraint("Vertical", 20))
sketch1.addConstraint(Sketcher.Constraint("Horizontal", 22))
sketch1.addConstraint(Sketcher.Constraint("Vertical", 24))
sketch1.addConstraint(Sketcher.Constraint("Horizontal", 26))
sketch1.addConstraint(Sketcher.Constraint("Vertical", 28))
sketch1.addConstraint(Sketcher.Constraint("Horizontal", 30))
sketch1.addConstraint(Sketcher.Constraint("Vertical", 32))
sketch1.addConstraint(Sketcher.Constraint("Horizontal", 36))
sketch1.addConstraint(Sketcher.Constraint("Vertical", 40))
sketch1.addConstraint(Sketcher.Constraint("Horizontal", 42))
sketch1.addConstraint(Sketcher.Constraint("Vertical", 44))
sketch1.addConstraint(Sketcher.Constraint("Horizontal", 46))
sketch1.addConstraint(Sketcher.Constraint("Vertical", 48))
sketch1.addConstraint(Sketcher.Constraint("Horizontal", 50))
sketch1.addConstraint(Sketcher.Constraint("Vertical", 52))
sketch1.addConstraint(Sketcher.Constraint("Horizontal", 54))
sketch1.addConstraint(Sketcher.Constraint("Vertical", 58))
sketch1.addConstraint(Sketcher.Constraint("Horizontal", 62))
sketch1.addConstraint(Sketcher.Constraint("Vertical", 64))
sketch1.addConstraint(Sketcher.Constraint("Horizontal", 66))
sketch1.addConstraint(Sketcher.Constraint("Vertical", 68))
sketch1.addConstraint(Sketcher.Constraint("Horizontal", 70))
sketch1.addConstraint(Sketcher.Constraint("Vertical", 72))
sketch1.addConstraint(Sketcher.Constraint("Horizontal", 74))
sketch1.addConstraint(Sketcher.Constraint("Vertical", 76))
sketch1.addConstraint(Sketcher.Constraint("Horizontal", 80))
sketch1.addConstraint(Sketcher.Constraint("Vertical", 83))
sketch1.addConstraint(Sketcher.Constraint("Horizontal", 85))
sketch1.addConstraint(Sketcher.Constraint("Coincident", 87, 3, -1, 1))
sketch1.addConstraint(Sketcher.Constraint("Equal", 1, 5))
sketch1.addConstraint(Sketcher.Constraint("Equal", 5, 7))
sketch1.addConstraint(Sketcher.Constraint("Equal", 7, 9))
sketch1.addConstraint(Sketcher.Constraint("Equal", 9, 11))
sketch1.addConstraint(Sketcher.Constraint("Equal", 11, 13))
sketch1.addConstraint(Sketcher.Constraint("Equal", 13, 15))
sketch1.addConstraint(Sketcher.Constraint("Equal", 15, 17))
sketch1.addConstraint(Sketcher.Constraint("Equal", 17, 19))
sketch1.addConstraint(Sketcher.Constraint("Equal", 19, 21))
sketch1.addConstraint(Sketcher.Constraint("Equal", 21, 23))
sketch1.addConstraint(Sketcher.Constraint("Equal", 3, 25))
sketch1.addConstraint(Sketcher.Constraint("Equal", 23, 27))
sketch1.addConstraint(Sketcher.Constraint("Equal", 27, 29))
sketch1.addConstraint(Sketcher.Constraint("Equal", 29, 31))
sketch1.addConstraint(Sketcher.Constraint("Equal", 31, 33))
sketch1.addConstraint(Sketcher.Constraint("Equal", 33, 35))
sketch1.addConstraint(Sketcher.Constraint("Equal", 35, 37))
sketch1.addConstraint(Sketcher.Constraint("Equal", 37, 39))
sketch1.addConstraint(Sketcher.Constraint("Equal", 39, 41))
sketch1.addConstraint(Sketcher.Constraint("Equal", 41, 43))
sketch1.addConstraint(Sketcher.Constraint("Equal", 43, 45))
sketch1.addConstraint(Sketcher.Constraint("Equal", 25, 47))
sketch1.addConstraint(Sketcher.Constraint("Equal", 45, 49))
sketch1.addConstraint(Sketcher.Constraint("Equal", 49, 51))
sketch1.addConstraint(Sketcher.Constraint("Equal", 51, 53))
sketch1.addConstraint(Sketcher.Constraint("Equal", 53, 55))
sketch1.addConstraint(Sketcher.Constraint("Equal", 55, 57))
sketch1.addConstraint(Sketcher.Constraint("Equal", 57, 59))
sketch1.addConstraint(Sketcher.Constraint("Equal", 59, 61))
sketch1.addConstraint(Sketcher.Constraint("Equal", 61, 63))
sketch1.addConstraint(Sketcher.Constraint("Equal", 63, 65))
sketch1.addConstraint(Sketcher.Constraint("Equal", 65, 67))
sketch1.addConstraint(Sketcher.Constraint("Equal", 47, 69))
sketch1.addConstraint(Sketcher.Constraint("Equal", 67, 71))
sketch1.addConstraint(Sketcher.Constraint("Equal", 71, 73))
sketch1.addConstraint(Sketcher.Constraint("Equal", 73, 75))
sketch1.addConstraint(Sketcher.Constraint("Equal", 75, 77))
sketch1.addConstraint(Sketcher.Constraint("Equal", 77, 79))
sketch1.addConstraint(Sketcher.Constraint("Equal", 79, 81))
sketch1.addConstraint(Sketcher.Constraint("Equal", 81, 84))
sketch1.addConstraint(Sketcher.Constraint("Equal", 84, 86))
sketch1.addConstraint(Sketcher.Constraint("Symmetric", 1, 3, 45, 3, -1, 1))
sketch1.addConstraint(Sketcher.Constraint("Symmetric", 5, 3, 49, 3, -1, 1))
sketch1.addConstraint(Sketcher.Constraint("Symmetric", 9, 3, 53, 3, -1, 1))
sketch1.addConstraint(Sketcher.Constraint("Symmetric", 13, 3, 57, 3, -1, 1))
sketch1.addConstraint(Sketcher.Constraint("Symmetric", 17, 3, 61, 3, -1, 1))
sketch1.addConstraint(Sketcher.Constraint("Symmetric", 21, 3, 65, 3, -1, 1))
sketch1.addConstraint(Sketcher.Constraint("Symmetric", 25, 3, 69, 3, -1, 1))
sketch1.addConstraint(Sketcher.Constraint("Symmetric", 29, 3, 73, 3, -1, 1))
sketch1.addConstraint(Sketcher.Constraint("Symmetric", 33, 3, 77, 3, -1, 1))
sketch1.addConstraint(Sketcher.Constraint("Symmetric", 35, 3, 79, 3, -1, 1))
sketch1.addConstraint(Sketcher.Constraint("Symmetric", 41, 3, 84, 3, -1, 1))
sketch1.addConstraint(Sketcher.Constraint("Symmetric", 37, 2, 81, 2, -1, 1))
sketch1.addConstraint(Sketcher.Constraint("Symmetric", 33, 3, 39, 3, -2))
sketch1.addConstraint(Sketcher.Constraint("Symmetric", 29, 3, 43, 3, -2))
sketch1.addConstraint(Sketcher.Constraint("Symmetric", 25, 3, 47, 3, -2))
sketch1.addConstraint(Sketcher.Constraint("Symmetric", 21, 3, 51, 3, -2))
sketch1.addConstraint(Sketcher.Constraint("Symmetric", 17, 3, 55, 3, -2))
sketch1.addConstraint(Sketcher.Constraint("Symmetric", 12, 2, 59, 2, -2))
sketch1.addConstraint(Sketcher.Constraint("Perpendicular", 12, 16))
sketch1.addConstraint(Sketcher.Constraint("Parallel", 16, 34))
sketch1.addConstraint(Sketcher.Constraint("Perpendicular", 34, 38))
sketch1.addConstraint(Sketcher.Constraint("Perpendicular", 56, 60))
sketch1.addConstraint(Sketcher.Constraint("Equal", 66, 0))
sketch1.addConstraint(Sketcher.Constraint("Equal", 70, 4))
sketch1.addConstraint(Sketcher.Constraint("Equal", 85, 8))
sketch1.addConstraint(Sketcher.Constraint("Equal", 80, 14))
sketch1.addConstraint(Sketcher.Constraint("Equal", 62, 32))
sketch1.addConstraint(Sketcher.Constraint("Equal", 16, 34))
sketch1.addConstraint(Sketcher.Constraint("Radius", 3, 1.0))
sketch1.addConstraint(Sketcher.Constraint("Diameter", 87, 5.2))
sketch1.addConstraint(Sketcher.Constraint("Radius", 1, 0.5))
sketch1.addConstraint(Sketcher.Constraint("DistanceX", 2, 2, 2, 1, 5.4))
sketch1.addConstraint(Sketcher.Constraint("DistanceX", 30, 2, 30, 1, 1.4))
sketch1.addConstraint(Sketcher.Constraint("DistanceX", 3, 3, -1, 1, 9.0))
sketch1.addConstraint(Sketcher.Constraint("DistanceX", 6, 1, 6, 2, 0.65))
sketch1.addConstraint(Sketcher.Constraint("DistanceX", 13, 3, -1, 1, 4.4))
sketch1.addConstraint(Sketcher.Constraint("DistanceX", 36, 1, 36, 2, 5.547309))
pad1 = body.newObject("PartDesign::Pad", "Pad")
pad1.Profile = sketch1
pad1.Length = 340

doc.recompute()
